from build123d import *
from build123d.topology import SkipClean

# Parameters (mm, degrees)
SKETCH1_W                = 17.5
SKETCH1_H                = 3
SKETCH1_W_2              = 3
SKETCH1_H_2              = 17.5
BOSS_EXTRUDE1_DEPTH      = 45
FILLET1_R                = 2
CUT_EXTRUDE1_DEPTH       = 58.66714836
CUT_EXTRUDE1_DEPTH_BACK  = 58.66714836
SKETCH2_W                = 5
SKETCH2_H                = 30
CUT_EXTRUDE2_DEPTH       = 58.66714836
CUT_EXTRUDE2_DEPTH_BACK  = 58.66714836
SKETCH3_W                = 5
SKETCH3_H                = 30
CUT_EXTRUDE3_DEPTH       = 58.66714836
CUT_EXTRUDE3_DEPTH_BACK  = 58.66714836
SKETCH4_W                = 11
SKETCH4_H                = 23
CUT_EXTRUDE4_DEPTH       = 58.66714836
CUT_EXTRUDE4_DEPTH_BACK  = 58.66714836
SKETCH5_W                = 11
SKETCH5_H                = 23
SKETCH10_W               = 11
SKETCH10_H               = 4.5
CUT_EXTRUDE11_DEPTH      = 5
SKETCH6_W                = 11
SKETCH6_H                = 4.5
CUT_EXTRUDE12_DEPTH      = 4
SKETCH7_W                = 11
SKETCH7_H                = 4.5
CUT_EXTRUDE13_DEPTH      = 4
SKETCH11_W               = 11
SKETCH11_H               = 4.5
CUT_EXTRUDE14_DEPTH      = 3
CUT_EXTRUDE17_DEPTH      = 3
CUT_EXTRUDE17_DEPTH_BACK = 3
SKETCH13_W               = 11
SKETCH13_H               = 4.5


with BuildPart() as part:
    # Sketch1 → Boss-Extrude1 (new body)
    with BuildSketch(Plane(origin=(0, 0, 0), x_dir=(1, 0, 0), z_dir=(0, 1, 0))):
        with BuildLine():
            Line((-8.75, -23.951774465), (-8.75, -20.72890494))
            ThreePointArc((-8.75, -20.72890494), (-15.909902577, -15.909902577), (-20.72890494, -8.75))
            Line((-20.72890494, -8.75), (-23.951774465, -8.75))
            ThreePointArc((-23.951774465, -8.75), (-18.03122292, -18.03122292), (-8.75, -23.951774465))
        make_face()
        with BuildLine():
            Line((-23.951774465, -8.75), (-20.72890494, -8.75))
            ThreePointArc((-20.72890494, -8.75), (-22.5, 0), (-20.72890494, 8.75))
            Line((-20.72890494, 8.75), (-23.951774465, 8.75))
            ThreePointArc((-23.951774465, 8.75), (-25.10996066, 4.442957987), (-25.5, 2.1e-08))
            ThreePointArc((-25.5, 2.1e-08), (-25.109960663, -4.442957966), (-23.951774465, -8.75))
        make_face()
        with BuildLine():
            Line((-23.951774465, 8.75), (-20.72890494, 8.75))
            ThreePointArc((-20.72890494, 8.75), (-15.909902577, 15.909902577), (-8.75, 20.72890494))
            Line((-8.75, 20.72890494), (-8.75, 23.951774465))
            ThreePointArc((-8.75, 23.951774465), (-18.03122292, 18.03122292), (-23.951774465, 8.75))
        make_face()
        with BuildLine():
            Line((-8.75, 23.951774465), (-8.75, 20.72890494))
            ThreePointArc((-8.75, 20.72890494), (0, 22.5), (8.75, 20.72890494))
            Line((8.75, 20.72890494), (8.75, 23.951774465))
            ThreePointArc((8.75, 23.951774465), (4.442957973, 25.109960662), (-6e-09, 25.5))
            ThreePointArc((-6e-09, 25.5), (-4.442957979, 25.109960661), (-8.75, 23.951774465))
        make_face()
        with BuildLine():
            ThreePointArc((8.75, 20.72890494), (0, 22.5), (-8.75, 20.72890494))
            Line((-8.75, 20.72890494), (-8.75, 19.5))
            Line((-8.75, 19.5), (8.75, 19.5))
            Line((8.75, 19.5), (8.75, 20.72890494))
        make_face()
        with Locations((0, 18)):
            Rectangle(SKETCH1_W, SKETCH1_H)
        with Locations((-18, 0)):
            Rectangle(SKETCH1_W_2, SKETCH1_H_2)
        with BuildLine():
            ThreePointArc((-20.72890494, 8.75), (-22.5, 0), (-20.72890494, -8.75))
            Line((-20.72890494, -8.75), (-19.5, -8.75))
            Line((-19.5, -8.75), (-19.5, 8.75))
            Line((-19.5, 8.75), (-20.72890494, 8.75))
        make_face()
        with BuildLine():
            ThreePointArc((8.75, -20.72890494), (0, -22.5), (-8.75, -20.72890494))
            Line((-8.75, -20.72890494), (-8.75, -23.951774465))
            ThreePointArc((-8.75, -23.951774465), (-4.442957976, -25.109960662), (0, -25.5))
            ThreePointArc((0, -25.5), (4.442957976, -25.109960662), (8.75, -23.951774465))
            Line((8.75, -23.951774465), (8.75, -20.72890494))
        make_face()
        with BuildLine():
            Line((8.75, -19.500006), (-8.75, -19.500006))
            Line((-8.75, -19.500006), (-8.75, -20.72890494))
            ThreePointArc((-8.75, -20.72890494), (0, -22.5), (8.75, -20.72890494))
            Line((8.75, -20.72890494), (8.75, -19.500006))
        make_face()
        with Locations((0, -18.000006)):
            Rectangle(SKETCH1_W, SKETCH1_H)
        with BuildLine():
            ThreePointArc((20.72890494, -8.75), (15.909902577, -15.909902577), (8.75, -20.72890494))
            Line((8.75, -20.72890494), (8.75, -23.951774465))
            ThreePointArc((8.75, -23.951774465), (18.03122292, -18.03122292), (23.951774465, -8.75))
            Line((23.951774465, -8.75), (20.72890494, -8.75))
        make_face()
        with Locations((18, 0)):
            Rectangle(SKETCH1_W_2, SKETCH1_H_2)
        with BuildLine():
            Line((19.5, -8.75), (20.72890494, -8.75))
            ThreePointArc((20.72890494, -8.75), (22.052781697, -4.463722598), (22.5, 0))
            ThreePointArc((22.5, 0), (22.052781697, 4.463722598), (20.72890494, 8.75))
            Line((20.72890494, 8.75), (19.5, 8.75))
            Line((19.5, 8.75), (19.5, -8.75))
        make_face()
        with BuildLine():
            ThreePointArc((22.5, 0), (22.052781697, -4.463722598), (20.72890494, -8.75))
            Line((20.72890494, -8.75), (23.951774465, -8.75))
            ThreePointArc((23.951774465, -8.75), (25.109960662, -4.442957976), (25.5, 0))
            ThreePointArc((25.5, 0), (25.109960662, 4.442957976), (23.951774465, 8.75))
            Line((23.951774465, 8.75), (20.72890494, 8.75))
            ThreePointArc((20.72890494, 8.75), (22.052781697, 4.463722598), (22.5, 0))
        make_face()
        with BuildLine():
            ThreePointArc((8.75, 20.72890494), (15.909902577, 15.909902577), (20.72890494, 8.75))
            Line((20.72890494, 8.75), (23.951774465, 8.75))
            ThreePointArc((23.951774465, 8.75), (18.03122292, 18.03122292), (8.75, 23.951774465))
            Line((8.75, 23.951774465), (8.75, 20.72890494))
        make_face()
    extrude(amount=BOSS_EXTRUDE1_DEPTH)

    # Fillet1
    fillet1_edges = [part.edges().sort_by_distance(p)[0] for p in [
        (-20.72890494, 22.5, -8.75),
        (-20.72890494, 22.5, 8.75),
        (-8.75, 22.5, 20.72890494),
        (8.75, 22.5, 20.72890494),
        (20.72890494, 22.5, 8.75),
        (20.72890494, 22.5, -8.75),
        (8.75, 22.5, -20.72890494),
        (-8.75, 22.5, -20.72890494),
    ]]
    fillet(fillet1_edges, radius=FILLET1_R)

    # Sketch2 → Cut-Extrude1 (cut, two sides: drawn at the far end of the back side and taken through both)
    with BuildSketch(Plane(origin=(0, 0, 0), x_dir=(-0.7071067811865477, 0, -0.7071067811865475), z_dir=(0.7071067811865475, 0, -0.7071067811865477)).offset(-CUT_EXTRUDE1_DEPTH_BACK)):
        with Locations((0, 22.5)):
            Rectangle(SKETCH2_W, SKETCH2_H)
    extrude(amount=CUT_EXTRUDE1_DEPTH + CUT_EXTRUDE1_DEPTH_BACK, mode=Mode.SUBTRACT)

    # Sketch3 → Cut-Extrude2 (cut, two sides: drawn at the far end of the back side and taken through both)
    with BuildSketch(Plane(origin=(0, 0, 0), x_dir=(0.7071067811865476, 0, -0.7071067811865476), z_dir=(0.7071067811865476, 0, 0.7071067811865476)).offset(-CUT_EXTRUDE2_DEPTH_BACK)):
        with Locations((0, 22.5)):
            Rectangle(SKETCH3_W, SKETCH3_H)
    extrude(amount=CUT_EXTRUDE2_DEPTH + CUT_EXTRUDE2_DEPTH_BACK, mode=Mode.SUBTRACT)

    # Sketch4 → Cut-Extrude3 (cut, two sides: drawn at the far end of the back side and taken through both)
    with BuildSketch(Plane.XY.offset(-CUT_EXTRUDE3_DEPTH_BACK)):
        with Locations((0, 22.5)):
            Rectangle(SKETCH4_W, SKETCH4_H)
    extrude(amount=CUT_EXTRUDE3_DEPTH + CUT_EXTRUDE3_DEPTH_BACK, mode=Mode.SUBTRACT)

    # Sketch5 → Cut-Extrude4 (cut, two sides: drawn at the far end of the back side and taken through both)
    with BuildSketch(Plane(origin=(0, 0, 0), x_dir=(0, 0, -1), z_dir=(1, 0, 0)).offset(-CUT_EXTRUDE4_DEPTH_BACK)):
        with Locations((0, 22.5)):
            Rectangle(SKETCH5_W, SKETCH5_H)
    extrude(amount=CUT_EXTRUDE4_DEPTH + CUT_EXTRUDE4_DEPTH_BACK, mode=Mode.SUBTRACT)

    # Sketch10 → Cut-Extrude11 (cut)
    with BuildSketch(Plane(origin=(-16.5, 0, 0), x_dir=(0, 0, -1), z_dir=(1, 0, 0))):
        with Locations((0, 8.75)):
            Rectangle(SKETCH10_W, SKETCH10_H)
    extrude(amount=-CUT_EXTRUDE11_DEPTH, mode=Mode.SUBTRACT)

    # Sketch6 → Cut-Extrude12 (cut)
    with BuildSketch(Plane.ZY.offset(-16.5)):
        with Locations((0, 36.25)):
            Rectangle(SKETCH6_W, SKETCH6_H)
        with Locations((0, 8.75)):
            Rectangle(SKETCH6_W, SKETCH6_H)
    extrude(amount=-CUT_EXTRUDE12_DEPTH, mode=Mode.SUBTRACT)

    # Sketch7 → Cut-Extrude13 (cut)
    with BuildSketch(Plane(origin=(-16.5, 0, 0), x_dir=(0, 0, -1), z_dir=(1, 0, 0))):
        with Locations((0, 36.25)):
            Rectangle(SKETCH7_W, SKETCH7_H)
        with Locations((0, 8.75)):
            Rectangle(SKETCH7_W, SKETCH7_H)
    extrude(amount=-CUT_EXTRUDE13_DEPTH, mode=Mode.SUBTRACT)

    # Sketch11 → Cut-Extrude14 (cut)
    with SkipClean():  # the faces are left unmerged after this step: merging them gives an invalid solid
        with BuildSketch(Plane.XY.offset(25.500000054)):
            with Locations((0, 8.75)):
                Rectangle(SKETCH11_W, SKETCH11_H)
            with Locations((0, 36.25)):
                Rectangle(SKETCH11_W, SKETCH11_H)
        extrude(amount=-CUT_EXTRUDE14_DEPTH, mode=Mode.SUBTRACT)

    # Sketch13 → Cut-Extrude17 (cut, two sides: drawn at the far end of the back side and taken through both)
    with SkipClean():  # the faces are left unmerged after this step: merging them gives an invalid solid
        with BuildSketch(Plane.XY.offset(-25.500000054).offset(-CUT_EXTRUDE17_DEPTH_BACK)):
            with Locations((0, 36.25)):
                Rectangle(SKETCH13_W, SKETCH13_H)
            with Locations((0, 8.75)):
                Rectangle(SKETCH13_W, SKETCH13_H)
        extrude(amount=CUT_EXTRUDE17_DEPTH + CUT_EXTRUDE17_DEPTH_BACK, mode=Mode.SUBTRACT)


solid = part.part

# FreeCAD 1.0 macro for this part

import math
import FreeCAD as App
import Part
import Sketcher

V = App.Vector
Q = App.Units.Quantity


def edges_at(feature, points):
    """Names of the edges that pass closest to the given points."""
    edges = feature.Shape.Edges
    near = lambda p: min(range(len(edges)), key=lambda i: edges[i].distToShape(Part.Vertex(*p))[0])
    return sorted({f"Edge{near(p) + 1}" for p in points})


def add_polygon(sketch, points):
    """Adds a closed chain of lines whose ends are joined by coincident constraints."""
    first, n = sketch.GeometryCount, len(points)
    for a, b in zip(points, points[1:] + points[:1]):
        sketch.addGeometry(Part.LineSegment(App.Vector(*a, 0), App.Vector(*b, 0)), False)
    for i in range(n):
        sketch.addConstraint(Sketcher.Constraint("Coincident", first + i, 2, first + (i + 1) % n, 1))

doc = App.newDocument("Part")
body = doc.addObject("PartDesign::Body", "Body")

# Sketch on XZ plane
sketch1 = doc.addObject("Sketcher::SketchObject", "Sketch")
body.addObject(sketch1)
sketch1.AttachmentSupport = (doc.XZ_Plane, [""])
sketch1.MapMode = "FlatFace"
sketch1.addGeometry([
    Part.ArcOfCircle(Part.Circle(V(0, 0, 0), V(0, 0, 1), 25.5), math.radians(-90), math.radians(-70)),  # 0
    Part.ArcOfCircle(Part.Circle(V(0, 0, 0), V(0, 0, 1), 25.5), math.radians(-110), math.radians(-90)),  # 1
    Part.ArcOfCircle(Part.Circle(V(0, 0, 0), V(0, 0, 1), 25.5), math.radians(-160), math.radians(-110)),  # 2
    Part.ArcOfCircle(Part.Circle(V(0, 0, 0), V(0, 0, 1), 25.5), math.radians(-180), math.radians(-160)),  # 3
    Part.ArcOfCircle(Part.Circle(V(0, 0, 0), V(0, 0, 1), 25.5), math.radians(160), math.radians(180)),  # 4
    Part.ArcOfCircle(Part.Circle(V(0, 0, 0), V(0, 0, 1), 25.5), math.radians(110), math.radians(160)),  # 5
    Part.ArcOfCircle(Part.Circle(V(0, 0, 0), V(0, 0, 1), 25.5), math.radians(90), math.radians(110)),  # 6
    Part.ArcOfCircle(Part.Circle(V(0, 0, 0), V(0, 0, 1), 25.5), math.radians(70), math.radians(90)),  # 7
    Part.ArcOfCircle(Part.Circle(V(0, 0, 0), V(0, 0, 1), 25.5), math.radians(20), math.radians(70)),  # 8
    Part.ArcOfCircle(Part.Circle(V(0, 0, 0), V(0, 0, 1), 25.5), math.radians(0), math.radians(20)),  # 9
    Part.ArcOfCircle(Part.Circle(V(0, 0, 0), V(0, 0, 1), 25.5), math.radians(-20), math.radians(0)),  # 10
    Part.ArcOfCircle(Part.Circle(V(0, 0, 0), V(0, 0, 1), 25.5), math.radians(-70), math.radians(-20)),  # 11
    Part.ArcOfCircle(Part.Circle(V(0, 0, 0), V(0, 0, 1), 22.5), math.radians(113), math.radians(157)),  # 12
    Part.LineSegment(V(-20.7, 8.8, 0), V(-16.5, 8.8, 0)),  # 13
    Part.LineSegment(V(-16.5, 8.8, 0), V(-16.5, -8.8, 0)),  # 14
    Part.LineSegment(V(-16.5, -8.8, 0), V(-20.7, -8.8, 0)),  # 15
    Part.ArcOfCircle(Part.Circle(V(0, 0, 0), V(0, 0, 1), 22.5), math.radians(-157), math.radians(-113)),  # 16
    Part.LineSegment(V(-8.8, -20.7, 0), V(-8.8, -16.5, 0)),  # 17
    Part.LineSegment(V(-8.8, -16.5, 0), V(8.8, -16.5, 0)),  # 18
    Part.LineSegment(V(8.8, -16.5, 0), V(8.8, -20.7, 0)),  # 19
    Part.ArcOfCircle(Part.Circle(V(0, 0, 0), V(0, 0, 1), 22.5), math.radians(-67), math.radians(-23)),  # 20
    Part.LineSegment(V(20.7, -8.8, 0), V(16.5, -8.8, 0)),  # 21
    Part.LineSegment(V(16.5, -8.8, 0), V(16.5, 8.8, 0)),  # 22
    Part.LineSegment(V(16.5, 8.8, 0), V(20.7, 8.8, 0)),  # 23
    Part.ArcOfCircle(Part.Circle(V(0, 0, 0), V(0, 0, 1), 22.5), math.radians(23), math.radians(67)),  # 24
    Part.LineSegment(V(8.8, 20.7, 0), V(8.8, 16.5, 0)),  # 25
    Part.LineSegment(V(8.8, 16.5, 0), V(-8.8, 16.5, 0)),  # 26
    Part.LineSegment(V(-8.8, 16.5, 0), V(-8.8, 20.7, 0)),  # 27
], False)
sketch1.addConstraint([
    Sketcher.Constraint("Tangent", 0, 1, 1, 2),
    Sketcher.Constraint("Tangent", 1, 1, 2, 2),
    Sketcher.Constraint("Tangent", 2, 1, 3, 2),
    Sketcher.Constraint("Tangent", 3, 1, 4, 2),
    Sketcher.Constraint("Tangent", 4, 1, 5, 2),
    Sketcher.Constraint("Tangent", 5, 1, 6, 2),
    Sketcher.Constraint("Tangent", 6, 1, 7, 2),
    Sketcher.Constraint("Tangent", 7, 1, 8, 2),
    Sketcher.Constraint("Tangent", 8, 1, 9, 2),
    Sketcher.Constraint("Tangent", 9, 1, 10, 2),
    Sketcher.Constraint("Tangent", 10, 1, 11, 2),
    Sketcher.Constraint("Tangent", 11, 1, 0, 2),
    Sketcher.Constraint("Coincident", 12, 2, 13, 1),
    Sketcher.Constraint("Coincident", 13, 2, 14, 1),
    Sketcher.Constraint("Coincident", 14, 2, 15, 1),
    Sketcher.Constraint("Coincident", 15, 2, 16, 1),
    Sketcher.Constraint("Coincident", 16, 2, 17, 1),
    Sketcher.Constraint("Coincident", 17, 2, 18, 1),
    Sketcher.Constraint("Coincident", 18, 2, 19, 1),
    Sketcher.Constraint("Coincident", 19, 2, 20, 1),
    Sketcher.Constraint("Coincident", 20, 2, 21, 1),
    Sketcher.Constraint("Coincident", 21, 2, 22, 1),
    Sketcher.Constraint("Coincident", 22, 2, 23, 1),
    Sketcher.Constraint("Coincident", 23, 2, 24, 1),
    Sketcher.Constraint("Coincident", 24, 2, 25, 1),
    Sketcher.Constraint("Coincident", 25, 2, 26, 1),
    Sketcher.Constraint("Coincident", 26, 2, 27, 1),
    Sketcher.Constraint("Coincident", 27, 2, 12, 1),
    Sketcher.Constraint("Horizontal", 13),
    Sketcher.Constraint("Vertical", 14),
    Sketcher.Constraint("Horizontal", 15),
    Sketcher.Constraint("Vertical", 17),
    Sketcher.Constraint("Horizontal", 18),
    Sketcher.Constraint("Vertical", 19),
    Sketcher.Constraint("Horizontal", 21),
    Sketcher.Constraint("Vertical", 22),
    Sketcher.Constraint("Horizontal", 23),
    Sketcher.Constraint("Vertical", 25),
    Sketcher.Constraint("Horizontal", 26),
    Sketcher.Constraint("Vertical", 27),
    Sketcher.Constraint("Coincident", 0, 3, -1, 1),
    Sketcher.Constraint("Coincident", 2, 3, -1, 1),
    Sketcher.Constraint("Coincident", 4, 3, -1, 1),
    Sketcher.Constraint("Coincident", 6, 3, -1, 1),
    Sketcher.Constraint("Coincident", 8, 3, -1, 1),
    Sketcher.Constraint("Coincident", 12, 3, -1, 1),
    Sketcher.Constraint("Coincident", 16, 3, -1, 1),
    Sketcher.Constraint("Coincident", 20, 3, -1, 1),
    Sketcher.Constraint("Coincident", 24, 3, -1, 1),
    Sketcher.Constraint("Equal", 8, 9),
    Sketcher.Constraint("Equal", 12, 16),
    Sketcher.Constraint("Equal", 16, 20),
    Sketcher.Constraint("Equal", 20, 24),
    Sketcher.Constraint("Symmetric", 13, 2, 21, 2, -1, 1),
    Sketcher.Constraint("Symmetric", 17, 2, 25, 2, -1, 1),
    Sketcher.Constraint("PointOnObject", 0, 1, -2),
    Sketcher.Constraint("PointOnObject", 3, 1, -1),
    Sketcher.Constraint("PointOnObject", 6, 1, -2),
    Sketcher.Constraint("PointOnObject", 9, 1, -1),
    Sketcher.Constraint("Horizontal", 5, 1, 7, 1),
    Sketcher.Constraint("Horizontal", 4, 1, 8, 1),
    Sketcher.Constraint("Horizontal", 2, 1, 10, 1),
    Sketcher.Constraint("Horizontal", 1, 1, 11, 1),
    Sketcher.Constraint("Horizontal", 8, 1, 12, 2),
    Sketcher.Constraint("Horizontal", 10, 1, 14, 2),
    Sketcher.Constraint("Horizontal", 16, 2, 19, 2),
    Sketcher.Constraint("Horizontal", 15, 2, 20, 2),
    Sketcher.Constraint("Horizontal", 13, 2, 22, 2),
    Sketcher.Constraint("Horizontal", 24, 2, 27, 2),
    Sketcher.Constraint("Vertical", 1, 1, 5, 1),
    Sketcher.Constraint("Vertical", 5, 1, 16, 2),
    Sketcher.Constraint("Equal", 26, 14),
    Sketcher.Constraint("Equal", 23, 17),
    Sketcher.Constraint("Radius", 0, Q("25.5 mm")),
    Sketcher.Constraint("Radius", 12, Q("22.5 mm")),
    Sketcher.Constraint("DistanceX", 18, 1, 18, 2, Q("17.5 mm")),
    Sketcher.Constraint("DistanceX", 3, 1, 13, 2, Q("9 mm")),
])
pad1 = doc.addObject("PartDesign::Pad", "Pad")
body.addObject(pad1)
pad1.Profile = sketch1
pad1.Length = 45
pad1.Reversed = True
doc.recompute()

fillet = doc.addObject("PartDesign::Fillet", "Fillet")
body.addObject(fillet)
fillet.Base = (pad1, edges_at(pad1, [
    (-20.729, 22.5, -8.75),
    (-20.729, 22.5, 8.75),
    (-8.75, 22.5, 20.729),
    (8.75, 22.5, 20.729),
    (20.729, 22.5, 8.75),
    (20.729, 22.5, -8.75),
    (8.75, 22.5, -20.729),
    (-8.75, 22.5, -20.729),
]))
fillet.Radius = 2

# Sketch on an angled plane
sketch2 = doc.addObject("Sketcher::SketchObject", "Sketch001")
body.addObject(sketch2)
sketch2.Placement = App.Placement(V(0, 0, 0), App.Rotation(V(-0.707106781, 0, -0.707106781), V(0, 0.999999999, 0), V(0.707106781, 0, -0.707106781), "ZXY"))
add_polygon(sketch2, [(-2.5, 37.5), (-2.5, 7.5), (2.5, 7.5), (2.5, 37.5)])  # lines 0-3
sketch2.addConstraint([
    Sketcher.Constraint("Vertical", 0),
    Sketcher.Constraint("Horizontal", 1),
    Sketcher.Constraint("Vertical", 2),
    Sketcher.Constraint("Horizontal", 3),
    Sketcher.Constraint("DistanceX", 1, 1, 1, 2, Q("5 mm")),
    Sketcher.Constraint("DistanceY", 0, 2, 0, 1, Q("30 mm")),
    Sketcher.Constraint("DistanceX", 0, 2, -1, 1, Q("2.5 mm")),
    Sketcher.Constraint("DistanceY", -1, 1, 0, 2, Q("7.5 mm")),
])
pocket1 = doc.addObject("PartDesign::Pocket", "Pocket")
body.addObject(pocket1)
pocket1.Profile = sketch2
pocket1.Type = "ThroughAll"
pocket1.Midplane = True

# Sketch on an angled plane
sketch3 = doc.addObject("Sketcher::SketchObject", "Sketch002")
body.addObject(sketch3)
sketch3.Placement = App.Placement(V(0, 0, 0), App.Rotation(V(0.707106781, 0, -0.707106781), V(0, 0.999999999, 0), V(0.707106781, 0, 0.707106781), "ZXY"))
add_polygon(sketch3, [(-2.5, 37.5), (-2.5, 7.5), (2.5, 7.5), (2.5, 37.5)])  # lines 0-3
sketch3.addConstraint([
    Sketcher.Constraint("Vertical", 0),
    Sketcher.Constraint("Horizontal", 1),
    Sketcher.Constraint("Vertical", 2),
    Sketcher.Constraint("Horizontal", 3),
    Sketcher.Constraint("DistanceX", 1, 1, 1, 2, Q("5 mm")),
    Sketcher.Constraint("DistanceY", 0, 2, 0, 1, Q("30 mm")),
    Sketcher.Constraint("DistanceX", 0, 2, -1, 1, Q("2.5 mm")),
    Sketcher.Constraint("DistanceY", -1, 1, 0, 2, Q("7.5 mm")),
])
pocket2 = doc.addObject("PartDesign::Pocket", "Pocket001")
body.addObject(pocket2)
pocket2.Profile = sketch3
pocket2.Type = "ThroughAll"
pocket2.Midplane = True

# Sketch on XY plane
sketch4 = doc.addObject("Sketcher::SketchObject", "Sketch003")
body.addObject(sketch4)
sketch4.AttachmentSupport = (doc.XY_Plane, [""])
sketch4.MapMode = "FlatFace"
add_polygon(sketch4, [(-6, 34), (-6, 11), (6, 11), (6, 34)])  # lines 0-3
sketch4.addConstraint([
    Sketcher.Constraint("Vertical", 0),
    Sketcher.Constraint("Horizontal", 1),
    Sketcher.Constraint("Vertical", 2),
    Sketcher.Constraint("Horizontal", 3),
    Sketcher.Constraint("DistanceX", 1, 1, 1, 2, Q("11 mm")),
    Sketcher.Constraint("DistanceY", 0, 2, 0, 1, Q("23 mm")),
    Sketcher.Constraint("DistanceY", -1, 1, 0, 2, Q("11 mm")),
    Sketcher.Constraint("DistanceX", 0, 2, -1, 1, Q("5.5 mm")),
])
pocket3 = doc.addObject("PartDesign::Pocket", "Pocket002")
body.addObject(pocket3)
pocket3.Profile = sketch4
pocket3.Type = "ThroughAll"
pocket3.Midplane = True

# Sketch on YZ plane
sketch5 = doc.addObject("Sketcher::SketchObject", "Sketch004")
body.addObject(sketch5)
sketch5.AttachmentSupport = (doc.YZ_Plane, [""])
sketch5.MapMode = "FlatFace"
add_polygon(sketch5, [(34, 6), (11, 6), (11, -6), (34, -6)])  # lines 0-3
sketch5.addConstraint([
    Sketcher.Constraint("Horizontal", 0),
    Sketcher.Constraint("Vertical", 1),
    Sketcher.Constraint("Horizontal", 2),
    Sketcher.Constraint("Vertical", 3),
    Sketcher.Constraint("DistanceX", 0, 2, 0, 1, Q("23 mm")),
    Sketcher.Constraint("DistanceY", 1, 2, 1, 1, Q("11 mm")),
    Sketcher.Constraint("DistanceX", -1, 1, 0, 2, Q("11 mm")),
    Sketcher.Constraint("DistanceY", -1, 1, 0, 2, Q("5.5 mm")),
])
pocket4 = doc.addObject("PartDesign::Pocket", "Pocket003")
body.addObject(pocket4)
pocket4.Profile = sketch5
pocket4.Type = "ThroughAll"
pocket4.Midplane = True

# Sketch on YZ plane
sketch6 = doc.addObject("Sketcher::SketchObject", "Sketch005")
body.addObject(sketch6)
sketch6.AttachmentSupport = (doc.YZ_Plane, [""])
sketch6.MapMode = "FlatFace"
sketch6.AttachmentOffset = App.Placement(V(0, 0, -16.5), App.Rotation())
add_polygon(sketch6, [(11, 5.5), (6.5, 5.5), (6.5, -5.5), (11, -5.5)])  # lines 0-3
sketch6.addConstraint([
    Sketcher.Constraint("Horizontal", 0),
    Sketcher.Constraint("Vertical", 1),
    Sketcher.Constraint("Horizontal", 2),
    Sketcher.Constraint("Vertical", 3),
    Sketcher.Constraint("DistanceY", 1, 2, 1, 1, Q("11 mm")),
    Sketcher.Constraint("DistanceX", 0, 2, 0, 1, Q("4.5 mm")),
    Sketcher.Constraint("DistanceX", -1, 1, 2, 2, Q("11 mm")),
    Sketcher.Constraint("DistanceY", -1, 1, 0, 2, Q("5.5 mm")),
])
pocket5 = doc.addObject("PartDesign::Pocket", "Pocket004")
body.addObject(pocket5)
pocket5.Profile = sketch6
pocket5.Length = 5

# Sketch on YZ plane
sketch7 = doc.addObject("Sketcher::SketchObject", "Sketch006")
body.addObject(sketch7)
sketch7.AttachmentSupport = (doc.YZ_Plane, [""])
sketch7.MapMode = "FlatFace"
sketch7.AttachmentOffset = App.Placement(V(0, 0, 16.5), App.Rotation())
add_polygon(sketch7, [(38.5, -5.5), (34, -5.5), (34, 5.5), (38.5, 5.5)])  # lines 0-3
add_polygon(sketch7, [(11, -5.5), (6.5, -5.5), (6.5, 5.5), (11, 5.5)])  # lines 4-7
sketch7.addConstraint([
    Sketcher.Constraint("Horizontal", 0),
    Sketcher.Constraint("Vertical", 1),
    Sketcher.Constraint("Horizontal", 2),
    Sketcher.Constraint("Vertical", 3),
    Sketcher.Constraint("Horizontal", 4),
    Sketcher.Constraint("Vertical", 5),
    Sketcher.Constraint("Horizontal", 6),
    Sketcher.Constraint("Vertical", 7),
    Sketcher.Constraint("Horizontal", 3, 2, 4, 2),
    Sketcher.Constraint("Horizontal", 2, 2, 5, 2),
    Sketcher.Constraint("Equal", 2, 4),
    Sketcher.Constraint("DistanceY", 1, 1, 1, 2, Q("11 mm")),
    Sketcher.Constraint("DistanceX", 0, 2, 0, 1, Q("4.5 mm")),
    Sketcher.Constraint("DistanceX", -1, 1, 0, 2, Q("34 mm")),
    Sketcher.Constraint("DistanceX", -1, 1, 6, 2, Q("11 mm")),
    Sketcher.Constraint("DistanceY", 0, 2, -1, 1, Q("5.5 mm")),
])
pocket6 = doc.addObject("PartDesign::Pocket", "Pocket005")
body.addObject(pocket6)
pocket6.Profile = sketch7
pocket6.Length = 4
pocket6.Reversed = True

# Sketch on YZ plane
sketch8 = doc.addObject("Sketcher::SketchObject", "Sketch007")
body.addObject(sketch8)
sketch8.AttachmentSupport = (doc.YZ_Plane, [""])
sketch8.MapMode = "FlatFace"
sketch8.AttachmentOffset = App.Placement(V(0, 0, -16.5), App.Rotation())
add_polygon(sketch8, [(38.5, 5.5), (34, 5.5), (34, -5.5), (38.5, -5.5)])  # lines 0-3
add_polygon(sketch8, [(11, 5.5), (6.5, 5.5), (6.5, -5.5), (11, -5.5)])  # lines 4-7
sketch8.addConstraint([
    Sketcher.Constraint("Horizontal", 0),
    Sketcher.Constraint("Vertical", 1),
    Sketcher.Constraint("Horizontal", 2),
    Sketcher.Constraint("Vertical", 3),
    Sketcher.Constraint("Horizontal", 4),
    Sketcher.Constraint("Vertical", 5),
    Sketcher.Constraint("Horizontal", 6),
    Sketcher.Constraint("Vertical", 7),
    Sketcher.Constraint("Horizontal", 3, 2, 4, 2),
    Sketcher.Constraint("Horizontal", 2, 2, 5, 2),
    Sketcher.Constraint("Equal", 2, 4),
    Sketcher.Constraint("DistanceY", 1, 2, 1, 1, Q("11 mm")),
    Sketcher.Constraint("DistanceX", 0, 2, 0, 1, Q("4.5 mm")),
    Sketcher.Constraint("DistanceX", -1, 1, 0, 2, Q("34 mm")),
    Sketcher.Constraint("DistanceX", -1, 1, 6, 2, Q("11 mm")),
    Sketcher.Constraint("DistanceY", -1, 1, 0, 2, Q("5.5 mm")),
])
pocket7 = doc.addObject("PartDesign::Pocket", "Pocket006")
body.addObject(pocket7)
pocket7.Profile = sketch8
pocket7.Length = 4

# Sketch on XY plane
sketch9 = doc.addObject("Sketcher::SketchObject", "Sketch008")
body.addObject(sketch9)
sketch9.AttachmentSupport = (doc.XY_Plane, [""])
sketch9.MapMode = "FlatFace"
sketch9.AttachmentOffset = App.Placement(V(0, 0, 25.5), App.Rotation())
add_polygon(sketch9, [(-5.5, 11), (-5.5, 6.5), (5.5, 6.5), (5.5, 11)])  # lines 0-3
add_polygon(sketch9, [(-5.5, 38.5), (-5.5, 34), (5.5, 34), (5.5, 38.5)])  # lines 4-7
sketch9.addConstraint([
    Sketcher.Constraint("Vertical", 0),
    Sketcher.Constraint("Horizontal", 1),
    Sketcher.Constraint("Vertical", 2),
    Sketcher.Constraint("Horizontal", 3),
    Sketcher.Constraint("Vertical", 4),
    Sketcher.Constraint("Horizontal", 5),
    Sketcher.Constraint("Vertical", 6),
    Sketcher.Constraint("Horizontal", 7),
    Sketcher.Constraint("Vertical", 3, 2, 4, 2),
    Sketcher.Constraint("Vertical", 2, 2, 5, 2),
    Sketcher.Constraint("Equal", 2, 4),
    Sketcher.Constraint("DistanceX", 1, 1, 1, 2, Q("11 mm")),
    Sketcher.Constraint("DistanceY", 0, 2, 0, 1, Q("4.5 mm")),
    Sketcher.Constraint("DistanceY", -1, 1, 2, 2, Q("11 mm")),
    Sketcher.Constraint("DistanceY", -1, 1, 4, 2, Q("34 mm")),
    Sketcher.Constraint("DistanceX", 0, 2, -1, 1, Q("5.5 mm")),
])
pocket8 = doc.addObject("PartDesign::Pocket", "Pocket007")
body.addObject(pocket8)
pocket8.Profile = sketch9
pocket8.Length = 3

# Sketch on XY plane
sketch10 = doc.addObject("Sketcher::SketchObject", "Sketch009")
body.addObject(sketch10)
sketch10.AttachmentSupport = (doc.XY_Plane, [""])
sketch10.MapMode = "FlatFace"
sketch10.AttachmentOffset = App.Placement(V(0, 0, -25.5), App.Rotation())
add_polygon(sketch10, [(-5.5, 38.5), (-5.5, 34), (5.5, 34), (5.5, 38.5)])  # lines 0-3
add_polygon(sketch10, [(-5.5, 11), (-5.5, 6.5), (5.5, 6.5), (5.5, 11)])  # lines 4-7
sketch10.addConstraint([
    Sketcher.Constraint("Vertical", 0),
    Sketcher.Constraint("Horizontal", 1),
    Sketcher.Constraint("Vertical", 2),
    Sketcher.Constraint("Horizontal", 3),
    Sketcher.Constraint("Vertical", 4),
    Sketcher.Constraint("Horizontal", 5),
    Sketcher.Constraint("Vertical", 6),
    Sketcher.Constraint("Horizontal", 7),
    Sketcher.Constraint("Vertical", 3, 2, 4, 2),
    Sketcher.Constraint("Vertical", 2, 2, 5, 2),
    Sketcher.Constraint("Equal", 2, 4),
    Sketcher.Constraint("DistanceX", 1, 1, 1, 2, Q("11 mm")),
    Sketcher.Constraint("DistanceY", 0, 2, 0, 1, Q("4.5 mm")),
    Sketcher.Constraint("DistanceY", -1, 1, 0, 2, Q("34 mm")),
    Sketcher.Constraint("DistanceY", -1, 1, 6, 2, Q("11 mm")),
    Sketcher.Constraint("DistanceX", 0, 2, -1, 1, Q("5.5 mm")),
])
pocket9 = doc.addObject("PartDesign::Pocket", "Pocket008")
body.addObject(pocket9)
pocket9.Profile = sketch10
pocket9.Type = "TwoLengths"
pocket9.Length = 3
pocket9.Length2 = 3
pocket9.Reversed = True

doc.recompute()
